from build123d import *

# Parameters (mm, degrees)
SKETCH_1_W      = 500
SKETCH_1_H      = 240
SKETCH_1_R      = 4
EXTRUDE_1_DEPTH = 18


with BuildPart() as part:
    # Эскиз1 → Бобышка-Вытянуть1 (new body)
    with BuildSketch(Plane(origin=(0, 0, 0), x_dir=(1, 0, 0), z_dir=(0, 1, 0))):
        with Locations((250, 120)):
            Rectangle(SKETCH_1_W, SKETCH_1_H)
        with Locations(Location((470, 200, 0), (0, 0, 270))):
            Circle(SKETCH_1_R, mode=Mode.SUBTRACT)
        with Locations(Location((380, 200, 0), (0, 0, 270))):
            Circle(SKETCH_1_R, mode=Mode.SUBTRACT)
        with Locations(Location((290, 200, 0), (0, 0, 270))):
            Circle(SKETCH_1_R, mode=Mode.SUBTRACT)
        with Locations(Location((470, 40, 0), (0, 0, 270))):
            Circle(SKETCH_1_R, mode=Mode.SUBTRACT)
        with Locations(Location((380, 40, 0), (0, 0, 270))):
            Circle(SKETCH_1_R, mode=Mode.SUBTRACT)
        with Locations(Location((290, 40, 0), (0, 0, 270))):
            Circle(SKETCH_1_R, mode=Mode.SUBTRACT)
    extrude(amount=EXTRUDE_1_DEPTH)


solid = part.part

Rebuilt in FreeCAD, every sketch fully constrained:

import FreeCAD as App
import Part
import Sketcher

V = App.Vector
Q = App.Units.Quantity


def add_polygon(sketch, points):
    """Adds a closed chain of lines whose ends are joined by coincident constraints."""
    first, n = sketch.GeometryCount, len(points)
    for a, b in zip(points, points[1:] + points[:1]):
        sketch.addGeometry(Part.LineSegment(App.Vector(*a, 0), App.Vector(*b, 0)), False)
    for i in range(n):
        sketch.addConstraint(Sketcher.Constraint("Coincident", first + i, 2, first + (i + 1) % n, 1))

doc = App.newDocument("Part")
params = doc.addObject("Spreadsheet::Sheet", "Params")
for row, (alias, value) in enumerate([
    ("sketch1_diameter", "8 mm"),
    ("sketch1_width", "500 mm"),
    ("sketch1_height", "240 mm"),
    ("pad1_length", "18 mm"),
], start=1):
    params.set(f"A{row}", alias)
    params.set(f"B{row}", "=" + value)
    params.setAlias(f"B{row}", alias)

body = doc.addObject("PartDesign::Body", "Body")

# Sketch on XZ plane
sketch1 = doc.addObject("Sketcher::SketchObject", "Sketch")
body.addObject(sketch1)
sketch1.AttachmentSupport = (doc.XZ_Plane, [""])
sketch1.MapMode = "FlatFace"
add_polygon(sketch1, [(0, -240), (0, 0), (500, 0), (500, -240)])  # lines 0-3
sketch1.addGeometry(Part.Circle(V(290, -40, 0), V(0, 0, 1), 4), False)  # 4
sketch1.addGeometry(Part.Circle(V(380, -40, 0), V(0, 0, 1), 4), False)  # 5
sketch1.addGeometry(Part.Circle(V(470, -40, 0), V(0, 0, 1), 4), False)  # 6
sketch1.addGeometry(Part.Circle(V(290, -200, 0), V(0, 0, 1), 4), False)  # 7
sketch1.addGeometry(Part.Circle(V(380, -200, 0), V(0, 0, 1), 4), False)  # 8
sketch1.addGeometry(Part.Circle(V(470, -200, 0), V(0, 0, 1), 4), False)  # 9
sketch1.addConstraint([
    Sketcher.Constraint("Vertical", 0),
    Sketcher.Constraint("Horizontal", 1),
    Sketcher.Constraint("Vertical", 2),
    Sketcher.Constraint("Horizontal", 3),
    Sketcher.Constraint("Coincident", 0, 2, -1, 1),
    Sketcher.Constraint("Equal", 4, 5),
    Sketcher.Constraint("Equal", 5, 6),
    Sketcher.Constraint("Equal", 6, 7),
    Sketcher.Constraint("Equal", 7, 8),
    Sketcher.Constraint("Equal", 8, 9),
    Sketcher.Constraint("Horizontal", 4, 3, 5, 3),
    Sketcher.Constraint("Horizontal", 5, 3, 6, 3),
    Sketcher.Constraint("Horizontal", 7, 3, 8, 3),
    Sketcher.Constraint("Horizontal", 8, 3, 9, 3),
    Sketcher.Constraint("Vertical", 4, 3, 7, 3),
    Sketcher.Constraint("Vertical", 5, 3, 8, 3),
    Sketcher.Constraint("Vertical", 6, 3, 9, 3),
    Sketcher.Constraint("Diameter", 4, Q("8 mm")),
    Sketcher.Constraint("DistanceX", 1, 1, 1, 2, Q("500 mm")),
    Sketcher.Constraint("DistanceY", 0, 1, 0, 2, Q("240 mm")),
    Sketcher.Constraint("DistanceX", -1, 1, 4, 3, Q("290 mm")),
    Sketcher.Constraint("DistanceY", 4, 3, -1, 1, Q("40 mm")),
    Sketcher.Constraint("DistanceX", -1, 1, 5, 3, Q("380 mm")),
    Sketcher.Constraint("DistanceX", -1, 1, 6, 3, Q("470 mm")),
    Sketcher.Constraint("DistanceY", 7, 3, -1, 1, Q("200 mm")),
])
sketch1.setExpression("Constraints[21]", "Params.sketch1_diameter")
sketch1.setExpression("Constraints[22]", "Params.sketch1_width")
sketch1.setExpression("Constraints[23]", "Params.sketch1_height")
pad1 = doc.addObject("PartDesign::Pad", "Pad")
body.addObject(pad1)
pad1.Profile = sketch1
pad1.setExpression("Length", "Params.pad1_length")
pad1.Reversed = True

doc.recompute()
